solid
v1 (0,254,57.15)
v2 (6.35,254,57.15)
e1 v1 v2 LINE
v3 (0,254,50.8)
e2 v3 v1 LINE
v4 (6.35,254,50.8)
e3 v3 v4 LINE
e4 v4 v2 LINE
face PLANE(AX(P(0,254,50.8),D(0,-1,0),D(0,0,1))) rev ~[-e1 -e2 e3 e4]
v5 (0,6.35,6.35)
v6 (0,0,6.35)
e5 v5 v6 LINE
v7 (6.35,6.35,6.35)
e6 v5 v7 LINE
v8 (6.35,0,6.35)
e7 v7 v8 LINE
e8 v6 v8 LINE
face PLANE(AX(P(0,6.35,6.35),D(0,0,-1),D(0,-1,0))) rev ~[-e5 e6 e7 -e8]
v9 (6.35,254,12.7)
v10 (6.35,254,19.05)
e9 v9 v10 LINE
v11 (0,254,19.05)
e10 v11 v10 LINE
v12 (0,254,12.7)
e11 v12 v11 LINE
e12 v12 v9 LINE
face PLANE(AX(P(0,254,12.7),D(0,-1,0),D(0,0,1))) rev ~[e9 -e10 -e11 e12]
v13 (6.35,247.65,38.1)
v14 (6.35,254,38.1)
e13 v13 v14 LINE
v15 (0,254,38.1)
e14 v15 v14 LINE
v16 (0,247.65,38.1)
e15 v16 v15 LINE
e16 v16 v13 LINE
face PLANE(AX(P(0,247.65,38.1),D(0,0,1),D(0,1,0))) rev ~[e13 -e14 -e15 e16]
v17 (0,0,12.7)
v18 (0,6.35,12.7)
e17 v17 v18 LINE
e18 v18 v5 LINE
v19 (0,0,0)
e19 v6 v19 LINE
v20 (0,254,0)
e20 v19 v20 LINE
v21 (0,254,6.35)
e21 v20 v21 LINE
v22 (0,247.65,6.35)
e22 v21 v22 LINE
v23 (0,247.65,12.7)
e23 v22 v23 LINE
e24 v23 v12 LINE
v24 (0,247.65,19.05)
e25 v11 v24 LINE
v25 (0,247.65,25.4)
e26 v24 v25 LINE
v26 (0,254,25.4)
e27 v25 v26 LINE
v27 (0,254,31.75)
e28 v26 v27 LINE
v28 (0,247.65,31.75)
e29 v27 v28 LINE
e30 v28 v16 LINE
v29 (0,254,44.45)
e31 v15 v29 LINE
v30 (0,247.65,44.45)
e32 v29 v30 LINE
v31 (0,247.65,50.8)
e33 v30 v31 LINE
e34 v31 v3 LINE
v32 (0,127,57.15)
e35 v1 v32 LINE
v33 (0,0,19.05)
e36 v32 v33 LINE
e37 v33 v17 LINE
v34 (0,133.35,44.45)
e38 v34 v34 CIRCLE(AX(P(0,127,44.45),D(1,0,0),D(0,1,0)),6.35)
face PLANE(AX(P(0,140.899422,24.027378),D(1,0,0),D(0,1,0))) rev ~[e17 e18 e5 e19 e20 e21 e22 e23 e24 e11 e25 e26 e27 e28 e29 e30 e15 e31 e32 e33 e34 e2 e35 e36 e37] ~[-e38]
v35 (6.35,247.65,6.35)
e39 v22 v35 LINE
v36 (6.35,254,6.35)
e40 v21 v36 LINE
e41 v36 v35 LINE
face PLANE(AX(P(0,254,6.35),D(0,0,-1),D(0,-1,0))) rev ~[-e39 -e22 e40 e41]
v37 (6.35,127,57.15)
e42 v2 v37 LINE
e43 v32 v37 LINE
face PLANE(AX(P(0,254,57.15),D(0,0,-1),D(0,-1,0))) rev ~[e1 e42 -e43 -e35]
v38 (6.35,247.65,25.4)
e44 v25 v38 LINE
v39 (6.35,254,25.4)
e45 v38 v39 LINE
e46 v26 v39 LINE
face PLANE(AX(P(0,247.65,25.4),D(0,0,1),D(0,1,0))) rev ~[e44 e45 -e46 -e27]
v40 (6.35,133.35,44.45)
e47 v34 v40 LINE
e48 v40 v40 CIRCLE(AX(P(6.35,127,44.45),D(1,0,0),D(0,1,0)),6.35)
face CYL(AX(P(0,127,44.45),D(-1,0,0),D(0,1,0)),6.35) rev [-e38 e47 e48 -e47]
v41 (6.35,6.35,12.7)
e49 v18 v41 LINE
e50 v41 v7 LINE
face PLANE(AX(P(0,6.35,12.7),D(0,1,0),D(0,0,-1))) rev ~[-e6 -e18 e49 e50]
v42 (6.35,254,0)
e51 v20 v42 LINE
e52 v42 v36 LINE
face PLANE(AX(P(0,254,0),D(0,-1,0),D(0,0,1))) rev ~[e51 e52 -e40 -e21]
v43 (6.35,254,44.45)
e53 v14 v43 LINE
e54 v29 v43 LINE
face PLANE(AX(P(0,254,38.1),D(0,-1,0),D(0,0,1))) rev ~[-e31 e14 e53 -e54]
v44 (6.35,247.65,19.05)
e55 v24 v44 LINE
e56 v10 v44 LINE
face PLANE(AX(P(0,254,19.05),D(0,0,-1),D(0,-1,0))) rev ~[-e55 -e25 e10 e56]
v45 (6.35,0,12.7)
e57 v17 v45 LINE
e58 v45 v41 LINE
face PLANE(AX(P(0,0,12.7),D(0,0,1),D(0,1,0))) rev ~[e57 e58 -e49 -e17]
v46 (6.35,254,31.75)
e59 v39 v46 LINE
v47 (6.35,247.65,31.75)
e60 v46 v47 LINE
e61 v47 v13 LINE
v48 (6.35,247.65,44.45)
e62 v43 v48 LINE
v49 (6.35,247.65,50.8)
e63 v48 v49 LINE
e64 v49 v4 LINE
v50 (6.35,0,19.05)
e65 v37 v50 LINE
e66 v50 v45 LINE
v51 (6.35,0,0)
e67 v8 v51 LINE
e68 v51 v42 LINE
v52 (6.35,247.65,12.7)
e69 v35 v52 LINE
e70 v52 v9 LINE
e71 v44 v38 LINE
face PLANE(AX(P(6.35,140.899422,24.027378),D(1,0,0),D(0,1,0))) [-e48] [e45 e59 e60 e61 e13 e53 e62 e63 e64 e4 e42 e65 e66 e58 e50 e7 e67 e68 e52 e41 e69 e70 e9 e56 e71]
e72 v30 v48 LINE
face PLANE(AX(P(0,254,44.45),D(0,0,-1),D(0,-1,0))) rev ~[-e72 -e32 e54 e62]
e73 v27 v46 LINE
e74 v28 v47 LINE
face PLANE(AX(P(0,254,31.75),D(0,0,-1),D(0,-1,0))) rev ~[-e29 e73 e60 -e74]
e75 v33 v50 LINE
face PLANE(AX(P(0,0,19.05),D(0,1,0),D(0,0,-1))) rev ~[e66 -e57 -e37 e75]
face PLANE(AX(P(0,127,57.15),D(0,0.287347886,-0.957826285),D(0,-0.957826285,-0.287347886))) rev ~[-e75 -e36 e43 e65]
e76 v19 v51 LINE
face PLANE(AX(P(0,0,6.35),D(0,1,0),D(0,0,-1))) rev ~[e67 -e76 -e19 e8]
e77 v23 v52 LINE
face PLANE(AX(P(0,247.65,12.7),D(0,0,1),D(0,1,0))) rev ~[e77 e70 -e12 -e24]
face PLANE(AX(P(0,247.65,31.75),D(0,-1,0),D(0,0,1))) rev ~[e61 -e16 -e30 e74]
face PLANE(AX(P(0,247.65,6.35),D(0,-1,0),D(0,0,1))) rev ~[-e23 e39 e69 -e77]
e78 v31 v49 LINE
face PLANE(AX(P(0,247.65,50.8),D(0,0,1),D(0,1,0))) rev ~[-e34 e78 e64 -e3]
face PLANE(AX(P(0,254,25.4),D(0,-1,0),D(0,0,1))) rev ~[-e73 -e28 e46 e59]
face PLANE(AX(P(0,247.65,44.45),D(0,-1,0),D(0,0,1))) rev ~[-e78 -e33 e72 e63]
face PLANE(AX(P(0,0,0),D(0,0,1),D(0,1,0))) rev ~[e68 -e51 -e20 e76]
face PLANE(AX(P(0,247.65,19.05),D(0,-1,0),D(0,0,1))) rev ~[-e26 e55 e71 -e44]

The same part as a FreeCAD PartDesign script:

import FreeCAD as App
import Part
import Sketcher
Q = App.Units.Quantity

doc = App.newDocument("Part")
params = doc.addObject("Spreadsheet::Sheet", "Params")
for row, (alias, value) in enumerate([
    ("sketch1_diameter", "0.5 in"),
    ("sketch1_width", "10 in"),
    ("sketch1_width2", "5 in"),
    ("pad1_length", "0.25 in"),
], start=1):
    params.set(f"A{row}", alias)
    params.set(f"B{row}", "=" + value)
    params.setAlias(f"B{row}", alias)

body = doc.addObject("PartDesign::Body", "Body")

# Sketch on YZ plane
sketch1 = body.newObject("Sketcher::SketchObject", "Sketch")
sketch1.AttachmentSupport = (doc.getObject("YZ_Plane"), [""])
sketch1.MapMode = "FlatFace"
sketch1.addGeometry([
    Part.LineSegment(App.Vector(0, 6, 0), App.Vector(0, 0, 0)),  # 0
    Part.LineSegment(App.Vector(0, 0, 0), App.Vector(254, 0, 0)),  # 1
    Part.LineSegment(App.Vector(254, 0, 0), App.Vector(254, 6, 0)),  # 2
    Part.LineSegment(App.Vector(254, 6, 0), App.Vector(248, 6, 0)),  # 3
    Part.LineSegment(App.Vector(248, 6, 0), App.Vector(248, 13, 0)),  # 4
    Part.LineSegment(App.Vector(248, 13, 0), App.Vector(254, 13, 0)),  # 5
    Part.LineSegment(App.Vector(254, 13, 0), App.Vector(254, 19, 0)),  # 6
    Part.LineSegment(App.Vector(254, 19, 0), App.Vector(248, 19, 0)),  # 7
    Part.LineSegment(App.Vector(248, 19, 0), App.Vector(248, 25, 0)),  # 8
    Part.LineSegment(App.Vector(248, 25, 0), App.Vector(254, 25, 0)),  # 9
    Part.LineSegment(App.Vector(254, 25, 0), App.Vector(254, 32, 0)),  # 10
    Part.LineSegment(App.Vector(254, 32, 0), App.Vector(248, 32, 0)),  # 11
    Part.LineSegment(App.Vector(248, 32, 0), App.Vector(248, 38, 0)),  # 12
    Part.LineSegment(App.Vector(248, 38, 0), App.Vector(254, 38, 0)),  # 13
    Part.LineSegment(App.Vector(254, 38, 0), App.Vector(254, 44, 0)),  # 14
    Part.LineSegment(App.Vector(254, 44, 0), App.Vector(248, 44, 0)),  # 15
    Part.LineSegment(App.Vector(248, 44, 0), App.Vector(248, 51, 0)),  # 16
    Part.LineSegment(App.Vector(248, 51, 0), App.Vector(254, 51, 0)),  # 17
    Part.LineSegment(App.Vector(254, 51, 0), App.Vector(254, 57, 0)),  # 18
    Part.LineSegment(App.Vector(254, 57, 0), App.Vector(127, 57, 0)),  # 19
    Part.LineSegment(App.Vector(127, 57, 0), App.Vector(0, 19, 0)),  # 20
    Part.LineSegment(App.Vector(0, 19, 0), App.Vector(0, 13, 0)),  # 21
    Part.LineSegment(App.Vector(0, 13, 0), App.Vector(6, 13, 0)),  # 22
    Part.LineSegment(App.Vector(6, 13, 0), App.Vector(6, 6, 0)),  # 23
    Part.LineSegment(App.Vector(6, 6, 0), App.Vector(0, 6, 0)),  # 24
    Part.Circle(App.Vector(127, 44, 0), App.Vector(0, 0, 1), 6),  # 25
], False)
sketch1.addConstraint([
    Sketcher.Constraint("Coincident", 0, 2, 1, 1),
    Sketcher.Constraint("Coincident", 1, 2, 2, 1),
    Sketcher.Constraint("Coincident", 2, 2, 3, 1),
    Sketcher.Constraint("Coincident", 3, 2, 4, 1),
    Sketcher.Constraint("Coincident", 4, 2, 5, 1),
    Sketcher.Constraint("Coincident", 5, 2, 6, 1),
    Sketcher.Constraint("Coincident", 6, 2, 7, 1),
    Sketcher.Constraint("Coincident", 7, 2, 8, 1),
    Sketcher.Constraint("Coincident", 8, 2, 9, 1),
    Sketcher.Constraint("Coincident", 9, 2, 10, 1),
    Sketcher.Constraint("Coincident", 10, 2, 11, 1),
    Sketcher.Constraint("Coincident", 11, 2, 12, 1),
    Sketcher.Constraint("Coincident", 12, 2, 13, 1),
    Sketcher.Constraint("Coincident", 13, 2, 14, 1),
    Sketcher.Constraint("Coincident", 14, 2, 15, 1),
    Sketcher.Constraint("Coincident", 15, 2, 16, 1),
    Sketcher.Constraint("Coincident", 16, 2, 17, 1),
    Sketcher.Constraint("Coincident", 17, 2, 18, 1),
    Sketcher.Constraint("Coincident", 18, 2, 19, 1),
    Sketcher.Constraint("Coincident", 19, 2, 20, 1),
    Sketcher.Constraint("Coincident", 20, 2, 21, 1),
    Sketcher.Constraint("Coincident", 21, 2, 22, 1),
    Sketcher.Constraint("Coincident", 22, 2, 23, 1),
    Sketcher.Constraint("Coincident", 23, 2, 24, 1),
    Sketcher.Constraint("Coincident", 24, 2, 0, 1),
    Sketcher.Constraint("Vertical", 0),
    Sketcher.Constraint("Horizontal", 1),
    Sketcher.Constraint("Vertical", 2),
    Sketcher.Constraint("Horizontal", 3),
    Sketcher.Constraint("Vertical", 4),
    Sketcher.Constraint("Horizontal", 5),
    Sketcher.Constraint("Vertical", 6),
    Sketcher.Constraint("Horizontal", 7),
    Sketcher.Constraint("Vertical", 8),
    Sketcher.Constraint("Horizontal", 9),
    Sketcher.Constraint("Vertical", 10),
    Sketcher.Constraint("Horizontal", 11),
    Sketcher.Constraint("Vertical", 12),
    Sketcher.Constraint("Horizontal", 13),
    Sketcher.Constraint("Vertical", 14),
    Sketcher.Constraint("Horizontal", 15),
    Sketcher.Constraint("Vertical", 16),
    Sketcher.Constraint("Horizontal", 17),
    Sketcher.Constraint("Vertical", 18),
    Sketcher.Constraint("Horizontal", 19),
    Sketcher.Constraint("Vertical", 21),
    Sketcher.Constraint("Horizontal", 22),
    Sketcher.Constraint("Vertical", 23),
    Sketcher.Constraint("Horizontal", 24),
    Sketcher.Constraint("Coincident", 0, 2, -1, 1),
    Sketcher.Constraint("PointOnObject", 20, 2, -2),
    Sketcher.Constraint("Horizontal", 25, 3, 14, 2),
    Sketcher.Constraint("Horizontal", 7, 2, 20, 2),
    Sketcher.Constraint("Horizontal", 5, 2, 21, 2),
    Sketcher.Constraint("Horizontal", 3, 2, 23, 2),
    Sketcher.Constraint("Vertical", 2, 2, 5, 2),
    Sketcher.Constraint("Vertical", 4, 2, 7, 2),
    Sketcher.Constraint("Vertical", 6, 2, 9, 2),
    Sketcher.Constraint("Vertical", 8, 2, 11, 2),
    Sketcher.Constraint("Vertical", 10, 2, 13, 2),
    Sketcher.Constraint("Vertical", 12, 2, 15, 2),
    Sketcher.Constraint("Vertical", 14, 2, 17, 2),
    Sketcher.Constraint("Vertical", 25, 3, 19, 2),
    Sketcher.Constraint("Equal", 17, 22),
    Sketcher.Constraint("Equal", 24, 0),
    Sketcher.Constraint("Equal", 2, 4),
    Sketcher.Constraint("Equal", 4, 6),
    Sketcher.Constraint("Equal", 6, 8),
    Sketcher.Constraint("Equal", 8, 10),
    Sketcher.Constraint("Equal", 10, 12),
    Sketcher.Constraint("Equal", 12, 14),
    Sketcher.Constraint("Equal", 14, 16),
    Sketcher.Constraint("Equal", 16, 18),
    Sketcher.Constraint("Diameter", 25, Q("0.5 in")),
    Sketcher.Constraint("DistanceX", 1, 1, 1, 2, Q("10 in")),
    Sketcher.Constraint("DistanceX", 19, 2, 19, 1, Q("5 in")),
    Sketcher.Constraint("DistanceY", -1, 1, 8, 2, Q("1 in")),
])
sketch1.setExpression("Constraints[73]", "Params.sketch1_diameter")
sketch1.setExpression("Constraints[74]", "Params.sketch1_width")
sketch1.setExpression("Constraints[75]", "Params.sketch1_width2")
pad1 = body.newObject("PartDesign::Pad", "Pad")
pad1.Profile = sketch1
pad1.setExpression("Length", "Params.pad1_length")

doc.recompute()
